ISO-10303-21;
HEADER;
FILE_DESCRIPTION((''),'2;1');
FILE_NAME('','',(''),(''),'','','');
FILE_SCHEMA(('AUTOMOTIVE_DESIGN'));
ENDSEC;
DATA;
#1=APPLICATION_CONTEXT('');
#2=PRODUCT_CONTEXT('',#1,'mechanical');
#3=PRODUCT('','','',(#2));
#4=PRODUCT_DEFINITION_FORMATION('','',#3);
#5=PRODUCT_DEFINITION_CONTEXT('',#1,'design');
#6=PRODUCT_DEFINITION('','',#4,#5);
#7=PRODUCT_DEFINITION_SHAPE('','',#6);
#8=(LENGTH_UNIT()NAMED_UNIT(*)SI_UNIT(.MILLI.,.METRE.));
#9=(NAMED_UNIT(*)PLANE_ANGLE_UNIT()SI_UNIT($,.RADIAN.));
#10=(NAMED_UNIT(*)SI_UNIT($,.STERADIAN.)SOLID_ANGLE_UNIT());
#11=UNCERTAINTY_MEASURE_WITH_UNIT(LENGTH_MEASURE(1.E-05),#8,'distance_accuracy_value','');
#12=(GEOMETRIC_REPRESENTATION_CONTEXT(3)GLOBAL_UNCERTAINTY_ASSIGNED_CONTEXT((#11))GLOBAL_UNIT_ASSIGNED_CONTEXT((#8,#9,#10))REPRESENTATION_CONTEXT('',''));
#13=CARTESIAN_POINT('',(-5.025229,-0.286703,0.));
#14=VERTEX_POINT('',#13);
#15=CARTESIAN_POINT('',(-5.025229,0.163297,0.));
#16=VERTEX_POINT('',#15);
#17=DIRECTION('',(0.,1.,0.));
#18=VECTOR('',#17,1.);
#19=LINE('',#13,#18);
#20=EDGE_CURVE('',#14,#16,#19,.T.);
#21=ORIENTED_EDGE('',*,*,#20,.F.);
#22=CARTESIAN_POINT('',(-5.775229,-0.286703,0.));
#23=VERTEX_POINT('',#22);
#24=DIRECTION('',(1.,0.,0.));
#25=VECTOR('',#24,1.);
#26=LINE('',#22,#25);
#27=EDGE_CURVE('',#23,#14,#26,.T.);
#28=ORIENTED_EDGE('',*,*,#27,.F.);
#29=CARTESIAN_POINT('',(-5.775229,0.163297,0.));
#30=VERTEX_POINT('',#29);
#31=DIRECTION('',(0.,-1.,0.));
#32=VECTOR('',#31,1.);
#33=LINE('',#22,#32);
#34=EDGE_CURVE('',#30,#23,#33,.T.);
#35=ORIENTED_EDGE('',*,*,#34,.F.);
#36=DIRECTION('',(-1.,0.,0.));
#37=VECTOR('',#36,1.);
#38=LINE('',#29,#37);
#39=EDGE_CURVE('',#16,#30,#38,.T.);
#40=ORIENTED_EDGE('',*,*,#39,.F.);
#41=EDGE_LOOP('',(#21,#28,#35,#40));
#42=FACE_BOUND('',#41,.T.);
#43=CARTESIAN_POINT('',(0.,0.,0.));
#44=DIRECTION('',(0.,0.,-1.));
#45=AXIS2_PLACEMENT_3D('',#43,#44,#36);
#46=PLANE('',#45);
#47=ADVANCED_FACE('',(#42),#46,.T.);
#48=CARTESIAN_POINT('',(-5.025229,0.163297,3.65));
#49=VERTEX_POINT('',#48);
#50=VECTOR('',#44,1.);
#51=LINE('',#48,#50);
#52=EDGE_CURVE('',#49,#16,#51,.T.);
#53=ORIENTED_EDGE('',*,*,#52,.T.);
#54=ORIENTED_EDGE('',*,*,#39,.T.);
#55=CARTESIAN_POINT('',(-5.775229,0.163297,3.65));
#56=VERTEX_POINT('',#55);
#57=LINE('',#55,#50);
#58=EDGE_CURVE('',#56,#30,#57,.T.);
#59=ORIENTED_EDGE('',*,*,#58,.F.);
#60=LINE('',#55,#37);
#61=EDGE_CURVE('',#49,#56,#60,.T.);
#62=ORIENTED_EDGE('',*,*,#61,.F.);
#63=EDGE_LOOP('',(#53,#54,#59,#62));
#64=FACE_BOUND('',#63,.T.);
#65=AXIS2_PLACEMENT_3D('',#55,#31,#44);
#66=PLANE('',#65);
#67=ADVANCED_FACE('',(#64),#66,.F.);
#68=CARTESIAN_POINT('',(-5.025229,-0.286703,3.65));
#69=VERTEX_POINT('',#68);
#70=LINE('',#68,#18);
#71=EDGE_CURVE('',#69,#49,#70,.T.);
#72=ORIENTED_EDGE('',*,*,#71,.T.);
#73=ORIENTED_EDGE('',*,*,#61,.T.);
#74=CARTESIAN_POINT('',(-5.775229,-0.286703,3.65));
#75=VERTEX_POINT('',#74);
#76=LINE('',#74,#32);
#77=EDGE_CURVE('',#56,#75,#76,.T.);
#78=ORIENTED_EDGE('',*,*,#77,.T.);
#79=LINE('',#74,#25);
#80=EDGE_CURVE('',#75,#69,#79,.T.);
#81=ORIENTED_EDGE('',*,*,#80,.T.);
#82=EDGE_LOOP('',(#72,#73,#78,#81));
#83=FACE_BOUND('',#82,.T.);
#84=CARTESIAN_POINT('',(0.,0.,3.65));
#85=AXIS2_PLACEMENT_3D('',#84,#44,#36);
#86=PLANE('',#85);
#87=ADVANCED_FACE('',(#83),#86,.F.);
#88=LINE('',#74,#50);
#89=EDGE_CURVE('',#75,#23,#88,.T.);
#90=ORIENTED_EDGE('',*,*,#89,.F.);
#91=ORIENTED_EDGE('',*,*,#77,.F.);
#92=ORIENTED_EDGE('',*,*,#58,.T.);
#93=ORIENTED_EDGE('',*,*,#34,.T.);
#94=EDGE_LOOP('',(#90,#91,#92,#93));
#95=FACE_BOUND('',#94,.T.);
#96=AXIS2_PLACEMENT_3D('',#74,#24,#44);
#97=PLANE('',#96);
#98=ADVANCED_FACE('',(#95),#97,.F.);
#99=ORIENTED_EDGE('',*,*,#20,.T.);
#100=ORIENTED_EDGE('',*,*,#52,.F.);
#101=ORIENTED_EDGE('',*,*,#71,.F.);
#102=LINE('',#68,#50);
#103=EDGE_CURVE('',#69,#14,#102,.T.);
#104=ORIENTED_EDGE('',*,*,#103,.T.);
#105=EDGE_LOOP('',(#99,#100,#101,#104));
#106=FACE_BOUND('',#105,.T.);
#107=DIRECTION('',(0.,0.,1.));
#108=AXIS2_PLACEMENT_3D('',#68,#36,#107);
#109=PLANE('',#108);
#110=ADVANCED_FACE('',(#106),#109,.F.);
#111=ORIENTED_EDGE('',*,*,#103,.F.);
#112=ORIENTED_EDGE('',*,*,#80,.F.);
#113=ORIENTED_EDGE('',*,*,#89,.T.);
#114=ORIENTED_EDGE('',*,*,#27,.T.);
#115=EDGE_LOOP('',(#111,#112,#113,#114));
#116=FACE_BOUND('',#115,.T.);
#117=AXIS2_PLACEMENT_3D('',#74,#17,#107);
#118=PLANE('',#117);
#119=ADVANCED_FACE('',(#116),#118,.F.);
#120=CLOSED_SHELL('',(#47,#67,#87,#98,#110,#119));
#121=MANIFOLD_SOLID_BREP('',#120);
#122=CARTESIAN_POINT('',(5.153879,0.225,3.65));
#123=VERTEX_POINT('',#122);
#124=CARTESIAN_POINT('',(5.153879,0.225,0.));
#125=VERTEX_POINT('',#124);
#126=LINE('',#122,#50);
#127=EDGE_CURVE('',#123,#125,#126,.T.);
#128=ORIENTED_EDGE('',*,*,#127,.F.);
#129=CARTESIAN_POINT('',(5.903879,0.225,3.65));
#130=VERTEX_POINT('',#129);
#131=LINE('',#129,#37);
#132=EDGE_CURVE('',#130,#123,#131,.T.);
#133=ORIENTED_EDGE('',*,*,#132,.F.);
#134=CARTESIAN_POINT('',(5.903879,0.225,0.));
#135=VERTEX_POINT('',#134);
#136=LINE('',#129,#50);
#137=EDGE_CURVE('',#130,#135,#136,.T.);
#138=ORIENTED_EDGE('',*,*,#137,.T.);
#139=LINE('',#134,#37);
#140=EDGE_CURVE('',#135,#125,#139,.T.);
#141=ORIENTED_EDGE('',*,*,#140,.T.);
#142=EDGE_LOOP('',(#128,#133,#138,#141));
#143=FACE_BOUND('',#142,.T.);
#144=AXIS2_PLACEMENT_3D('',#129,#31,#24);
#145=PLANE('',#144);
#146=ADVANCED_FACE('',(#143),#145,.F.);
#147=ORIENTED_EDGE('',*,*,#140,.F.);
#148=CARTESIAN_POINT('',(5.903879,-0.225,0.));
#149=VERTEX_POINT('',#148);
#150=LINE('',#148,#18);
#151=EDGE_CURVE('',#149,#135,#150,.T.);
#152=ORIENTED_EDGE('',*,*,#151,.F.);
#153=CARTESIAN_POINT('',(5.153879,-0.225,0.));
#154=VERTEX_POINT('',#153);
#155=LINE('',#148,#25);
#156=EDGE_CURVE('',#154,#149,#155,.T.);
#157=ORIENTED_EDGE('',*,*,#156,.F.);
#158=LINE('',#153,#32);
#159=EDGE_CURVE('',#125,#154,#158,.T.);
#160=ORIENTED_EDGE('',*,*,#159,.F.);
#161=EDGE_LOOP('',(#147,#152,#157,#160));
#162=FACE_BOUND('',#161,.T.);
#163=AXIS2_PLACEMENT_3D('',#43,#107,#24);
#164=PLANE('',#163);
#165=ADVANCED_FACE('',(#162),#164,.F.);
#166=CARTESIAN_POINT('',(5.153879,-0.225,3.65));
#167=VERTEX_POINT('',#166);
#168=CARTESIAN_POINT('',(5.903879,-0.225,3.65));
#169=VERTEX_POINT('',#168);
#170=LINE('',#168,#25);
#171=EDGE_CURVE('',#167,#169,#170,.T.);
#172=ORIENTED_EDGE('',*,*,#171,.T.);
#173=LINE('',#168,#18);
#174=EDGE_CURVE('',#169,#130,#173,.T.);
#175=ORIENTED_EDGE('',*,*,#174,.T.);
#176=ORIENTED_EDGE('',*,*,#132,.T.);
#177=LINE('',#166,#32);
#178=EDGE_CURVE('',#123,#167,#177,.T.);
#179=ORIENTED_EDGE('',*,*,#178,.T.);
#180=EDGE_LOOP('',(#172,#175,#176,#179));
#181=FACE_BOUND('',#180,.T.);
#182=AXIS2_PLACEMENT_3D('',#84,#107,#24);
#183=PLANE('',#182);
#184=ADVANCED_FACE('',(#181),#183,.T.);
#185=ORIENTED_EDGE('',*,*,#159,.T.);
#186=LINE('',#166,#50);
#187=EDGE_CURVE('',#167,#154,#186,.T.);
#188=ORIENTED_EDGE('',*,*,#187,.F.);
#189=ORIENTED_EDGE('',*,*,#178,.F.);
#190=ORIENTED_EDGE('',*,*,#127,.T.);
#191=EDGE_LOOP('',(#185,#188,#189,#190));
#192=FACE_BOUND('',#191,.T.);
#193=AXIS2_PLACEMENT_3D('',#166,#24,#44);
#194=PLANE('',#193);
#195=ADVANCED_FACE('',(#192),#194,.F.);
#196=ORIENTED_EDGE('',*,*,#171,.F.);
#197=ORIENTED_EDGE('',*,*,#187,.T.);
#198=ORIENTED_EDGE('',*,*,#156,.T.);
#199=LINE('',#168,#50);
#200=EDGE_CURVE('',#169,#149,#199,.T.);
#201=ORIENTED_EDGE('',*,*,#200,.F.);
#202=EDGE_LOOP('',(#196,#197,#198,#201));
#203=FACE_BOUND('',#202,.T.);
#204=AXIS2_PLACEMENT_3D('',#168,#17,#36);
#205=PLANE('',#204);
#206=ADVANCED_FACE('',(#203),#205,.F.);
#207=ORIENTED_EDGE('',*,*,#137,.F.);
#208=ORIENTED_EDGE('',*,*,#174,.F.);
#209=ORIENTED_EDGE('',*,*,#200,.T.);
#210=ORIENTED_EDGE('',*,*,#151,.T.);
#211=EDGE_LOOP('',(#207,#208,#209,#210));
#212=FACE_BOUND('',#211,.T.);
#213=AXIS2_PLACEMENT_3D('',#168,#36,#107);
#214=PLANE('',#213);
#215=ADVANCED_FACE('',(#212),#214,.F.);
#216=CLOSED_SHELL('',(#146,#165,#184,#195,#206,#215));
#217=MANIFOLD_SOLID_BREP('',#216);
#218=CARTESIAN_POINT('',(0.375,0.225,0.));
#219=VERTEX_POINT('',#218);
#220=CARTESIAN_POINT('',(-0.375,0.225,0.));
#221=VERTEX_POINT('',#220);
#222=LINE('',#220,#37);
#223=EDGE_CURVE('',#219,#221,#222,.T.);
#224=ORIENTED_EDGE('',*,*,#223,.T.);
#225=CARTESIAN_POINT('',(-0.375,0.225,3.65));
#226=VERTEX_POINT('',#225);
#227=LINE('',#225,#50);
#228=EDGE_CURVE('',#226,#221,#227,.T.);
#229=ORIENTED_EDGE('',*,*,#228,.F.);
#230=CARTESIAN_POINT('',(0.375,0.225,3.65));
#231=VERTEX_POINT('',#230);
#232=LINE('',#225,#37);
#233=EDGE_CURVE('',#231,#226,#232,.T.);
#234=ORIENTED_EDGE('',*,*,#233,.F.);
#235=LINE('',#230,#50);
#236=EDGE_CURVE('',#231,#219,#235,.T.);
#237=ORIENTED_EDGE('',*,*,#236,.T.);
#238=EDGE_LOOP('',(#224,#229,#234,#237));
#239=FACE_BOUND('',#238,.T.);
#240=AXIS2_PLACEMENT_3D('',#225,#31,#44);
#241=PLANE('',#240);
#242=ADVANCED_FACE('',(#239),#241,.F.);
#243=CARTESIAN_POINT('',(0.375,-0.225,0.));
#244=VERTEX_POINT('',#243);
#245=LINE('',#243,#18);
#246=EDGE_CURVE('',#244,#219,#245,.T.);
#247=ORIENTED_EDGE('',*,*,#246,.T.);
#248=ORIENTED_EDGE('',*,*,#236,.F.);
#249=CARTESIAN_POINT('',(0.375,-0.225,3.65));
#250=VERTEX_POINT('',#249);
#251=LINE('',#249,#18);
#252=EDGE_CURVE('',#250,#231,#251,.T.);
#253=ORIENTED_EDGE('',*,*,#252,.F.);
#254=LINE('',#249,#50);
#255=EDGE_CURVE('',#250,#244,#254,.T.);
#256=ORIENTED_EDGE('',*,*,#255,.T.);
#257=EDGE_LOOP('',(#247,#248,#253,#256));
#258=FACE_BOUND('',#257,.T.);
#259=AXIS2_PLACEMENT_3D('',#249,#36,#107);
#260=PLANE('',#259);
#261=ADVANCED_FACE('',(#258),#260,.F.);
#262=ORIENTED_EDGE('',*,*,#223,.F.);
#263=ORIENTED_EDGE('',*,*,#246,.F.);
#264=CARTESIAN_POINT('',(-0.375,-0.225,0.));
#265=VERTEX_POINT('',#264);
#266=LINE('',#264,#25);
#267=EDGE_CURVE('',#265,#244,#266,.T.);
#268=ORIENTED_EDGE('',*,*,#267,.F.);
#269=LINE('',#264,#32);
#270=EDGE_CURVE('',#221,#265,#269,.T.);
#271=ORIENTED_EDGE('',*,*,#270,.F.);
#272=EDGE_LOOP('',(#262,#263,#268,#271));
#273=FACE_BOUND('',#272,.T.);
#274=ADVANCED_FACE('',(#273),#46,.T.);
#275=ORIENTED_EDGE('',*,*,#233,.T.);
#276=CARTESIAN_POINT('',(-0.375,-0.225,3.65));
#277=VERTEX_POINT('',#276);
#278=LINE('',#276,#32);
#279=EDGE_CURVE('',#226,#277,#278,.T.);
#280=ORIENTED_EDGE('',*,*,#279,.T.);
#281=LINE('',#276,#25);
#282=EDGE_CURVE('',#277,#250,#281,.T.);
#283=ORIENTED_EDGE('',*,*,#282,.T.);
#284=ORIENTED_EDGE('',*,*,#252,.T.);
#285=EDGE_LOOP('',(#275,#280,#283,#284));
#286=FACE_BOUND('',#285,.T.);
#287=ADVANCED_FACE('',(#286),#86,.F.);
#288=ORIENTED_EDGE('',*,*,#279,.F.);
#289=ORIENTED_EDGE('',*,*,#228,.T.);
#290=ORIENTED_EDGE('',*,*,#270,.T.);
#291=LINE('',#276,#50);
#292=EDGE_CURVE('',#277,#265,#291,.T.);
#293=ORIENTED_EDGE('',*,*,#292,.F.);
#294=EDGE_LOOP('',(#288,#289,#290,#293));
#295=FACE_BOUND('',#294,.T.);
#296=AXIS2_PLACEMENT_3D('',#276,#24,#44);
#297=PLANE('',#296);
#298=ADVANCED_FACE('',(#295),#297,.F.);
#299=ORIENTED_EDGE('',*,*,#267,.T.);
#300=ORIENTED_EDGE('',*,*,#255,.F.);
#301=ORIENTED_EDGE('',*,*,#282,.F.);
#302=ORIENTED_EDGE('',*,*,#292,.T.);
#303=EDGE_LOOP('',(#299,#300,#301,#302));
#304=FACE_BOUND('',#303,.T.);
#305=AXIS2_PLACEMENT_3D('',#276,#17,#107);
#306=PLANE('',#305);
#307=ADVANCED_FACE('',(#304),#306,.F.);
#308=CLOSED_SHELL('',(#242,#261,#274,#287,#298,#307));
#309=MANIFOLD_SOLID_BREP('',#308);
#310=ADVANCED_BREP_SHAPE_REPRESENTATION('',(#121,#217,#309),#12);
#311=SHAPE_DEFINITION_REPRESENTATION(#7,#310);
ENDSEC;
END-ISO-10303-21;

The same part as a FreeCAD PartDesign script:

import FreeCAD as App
import Part
import Sketcher
Q = App.Units.Quantity


def add_polygon(sketch, points):
    """Adds a closed chain of lines whose ends are joined by coincident constraints."""
    first, n = sketch.GeometryCount, len(points)
    for a, b in zip(points, points[1:] + points[:1]):
        sketch.addGeometry(Part.LineSegment(App.Vector(*a, 0), App.Vector(*b, 0)), False)
    for i in range(n):
        sketch.addConstraint(Sketcher.Constraint("Coincident", first + i, 2, first + (i + 1) % n, 1))

doc = App.newDocument("Part")
body = doc.addObject("PartDesign::Body", "Body")

# Sketch on XY plane
sketch1 = body.newObject("Sketcher::SketchObject", "Sketch")
sketch1.AttachmentSupport = (doc.getObject("XY_Plane"), [""])
sketch1.MapMode = "FlatFace"
add_polygon(sketch1, [(-5.775229, 0.163297), (-5.775229, -0.286703), (-5.025229, -0.286703), (-5.025229, 0.163297)])  # lines 0-3
sketch1.addConstraint([
    Sketcher.Constraint("Vertical", 0),
    Sketcher.Constraint("Horizontal", 1),
    Sketcher.Constraint("Vertical", 2),
    Sketcher.Constraint("Horizontal", 3),
    Sketcher.Constraint("DistanceX", 1, 1, 1, 2, Q("0.75 mm")),
    Sketcher.Constraint("DistanceY", 0, 2, 0, 1, Q("0.45 mm")),
    Sketcher.Constraint("DistanceX", 0, 2, -1, 1, Q("5.775229 mm")),
    Sketcher.Constraint("DistanceY", 0, 2, -1, 1, Q("0.286703 mm")),
])
pad1 = body.newObject("PartDesign::Pad", "Pad")
pad1.Profile = sketch1
pad1.Length = 3.65
body2 = doc.addObject("PartDesign::Body", "Body001")

# Sketch on XY plane
sketch2 = body2.newObject("Sketcher::SketchObject", "Sketch001")
sketch2.AttachmentSupport = (doc.getObject("XY_Plane001"), [""])
sketch2.MapMode = "FlatFace"
add_polygon(sketch2, [(-0.375, 0.225), (-0.375, -0.225), (0.375, -0.225), (0.375, 0.225)])  # lines 0-3
sketch2.addConstraint([
    Sketcher.Constraint("Vertical", 0),
    Sketcher.Constraint("Horizontal", 1),
    Sketcher.Constraint("Vertical", 2),
    Sketcher.Constraint("Horizontal", 3),
    Sketcher.Constraint("Symmetric", 0, 2, 2, 2, -1, 1),
    Sketcher.Constraint("DistanceX", 1, 1, 1, 2, Q("0.75 mm")),
    Sketcher.Constraint("DistanceY", 0, 2, 0, 1, Q("0.45 mm")),
])
pad2 = body2.newObject("PartDesign::Pad", "Pad001")
pad2.Profile = sketch2
pad2.Length = 3.65
body3 = doc.addObject("PartDesign::Body", "Body002")

# Sketch on XY plane
sketch3 = body3.newObject("Sketcher::SketchObject", "Sketch002")
sketch3.AttachmentSupport = (doc.getObject("XY_Plane002"), [""])
sketch3.MapMode = "FlatFace"
add_polygon(sketch3, [(5.153879, 0.225), (5.153879, -0.225), (5.903879, -0.225), (5.903879, 0.225)])  # lines 0-3
sketch3.addConstraint([
    Sketcher.Constraint("Vertical", 0),
    Sketcher.Constraint("Horizontal", 1),
    Sketcher.Constraint("Vertical", 2),
    Sketcher.Constraint("Horizontal", 3),
    Sketcher.Constraint("DistanceX", 1, 1, 1, 2, Q("0.75 mm")),
    Sketcher.Constraint("DistanceY", 0, 2, 0, 1, Q("0.45 mm")),
    Sketcher.Constraint("DistanceY", 0, 2, -1, 1, Q("0.225 mm")),
    Sketcher.Constraint("DistanceX", -1, 1, 0, 2, Q("5.153879 mm")),
])
pad3 = body3.newObject("PartDesign::Pad", "Pad002")
pad3.Profile = sketch3
pad3.Length = 3.65

doc.recompute()
